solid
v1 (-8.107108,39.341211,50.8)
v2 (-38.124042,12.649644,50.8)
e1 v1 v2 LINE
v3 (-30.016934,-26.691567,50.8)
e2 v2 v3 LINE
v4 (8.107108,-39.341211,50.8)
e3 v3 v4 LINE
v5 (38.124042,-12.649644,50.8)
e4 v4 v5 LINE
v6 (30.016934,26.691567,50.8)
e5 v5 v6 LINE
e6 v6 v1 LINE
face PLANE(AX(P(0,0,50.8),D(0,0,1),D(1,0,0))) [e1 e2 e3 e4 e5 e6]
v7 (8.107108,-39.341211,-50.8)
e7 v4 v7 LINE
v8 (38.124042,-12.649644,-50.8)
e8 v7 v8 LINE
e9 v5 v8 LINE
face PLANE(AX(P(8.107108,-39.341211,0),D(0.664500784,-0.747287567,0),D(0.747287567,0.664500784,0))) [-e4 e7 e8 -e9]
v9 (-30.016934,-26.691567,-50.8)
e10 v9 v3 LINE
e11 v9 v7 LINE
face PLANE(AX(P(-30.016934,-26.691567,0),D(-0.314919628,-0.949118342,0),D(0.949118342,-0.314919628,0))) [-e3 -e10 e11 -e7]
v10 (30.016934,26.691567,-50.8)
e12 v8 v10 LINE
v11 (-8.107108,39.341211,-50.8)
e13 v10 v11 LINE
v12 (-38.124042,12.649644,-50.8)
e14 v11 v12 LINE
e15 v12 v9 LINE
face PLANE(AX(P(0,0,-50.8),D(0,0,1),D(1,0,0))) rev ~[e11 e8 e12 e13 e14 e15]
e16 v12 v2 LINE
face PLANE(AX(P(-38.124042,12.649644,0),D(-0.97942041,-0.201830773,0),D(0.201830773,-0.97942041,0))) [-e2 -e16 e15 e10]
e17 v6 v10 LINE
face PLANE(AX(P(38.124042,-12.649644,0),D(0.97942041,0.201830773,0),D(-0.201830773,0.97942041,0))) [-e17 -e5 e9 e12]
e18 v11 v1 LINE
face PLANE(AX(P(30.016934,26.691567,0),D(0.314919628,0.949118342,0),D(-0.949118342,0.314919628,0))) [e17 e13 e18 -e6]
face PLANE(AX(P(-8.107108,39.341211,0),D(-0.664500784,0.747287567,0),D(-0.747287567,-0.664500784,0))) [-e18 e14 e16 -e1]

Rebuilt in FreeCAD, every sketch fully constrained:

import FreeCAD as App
import Part
import Sketcher

V = App.Vector

doc = App.newDocument("Part")
params = doc.addObject("Spreadsheet::Sheet", "Params")
for row, (alias, value) in enumerate([
    ("pad1_length", "2 in"),
    ("pad1_length2", "2 in"),
], start=1):
    params.set(f"A{row}", alias)
    params.set(f"B{row}", "=" + value)
    params.setAlias(f"B{row}", alias)

body = doc.addObject("PartDesign::Body", "Body")

# Sketch on XY plane
sketch1 = body.newObject("Sketcher::SketchObject", "Sketch")
sketch1.AttachmentSupport = (doc.getObject("XY_Plane"), [""])
sketch1.MapMode = "FlatFace"
sketch1.addGeometry([
    Part.LineSegment(V(30, 27, 0), V(-8, 39, 0)),  # 0
    Part.LineSegment(V(-8, 39, 0), V(-38, 13, 0)),  # 1
    Part.LineSegment(V(-38, 13, 0), V(-30, -27, 0)),  # 2
    Part.LineSegment(V(-30, -27, 0), V(8, -39, 0)),  # 3
    Part.LineSegment(V(8, -39, 0), V(38, -13, 0)),  # 4
    Part.LineSegment(V(38, -13, 0), V(30, 27, 0)),  # 5
], False)
sketch1.addConstraint([
    Sketcher.Constraint("Coincident", 0, 2, 1, 1),
    Sketcher.Constraint("Coincident", 1, 2, 2, 1),
    Sketcher.Constraint("Coincident", 2, 2, 3, 1),
    Sketcher.Constraint("Coincident", 3, 2, 4, 1),
    Sketcher.Constraint("Coincident", 4, 2, 5, 1),
    Sketcher.Constraint("Coincident", 5, 2, 0, 1),
    Sketcher.Constraint("Symmetric", 0, 2, 3, 2, -1, 1),
    Sketcher.Constraint("Symmetric", 1, 2, 4, 2, -1, 1),
    Sketcher.Constraint("Symmetric", 2, 2, 5, 2, -1, 1),
    Sketcher.Constraint("Equal", 0, 1),
    Sketcher.Constraint("Equal", 1, 2),
    Sketcher.Constraint("Distance", 0, 40.167849),
    Sketcher.Constraint("DistanceY", -1, 1, 0, 2, 39.341211),
    Sketcher.Constraint("DistanceX", 1, 2, 2, 2, 8.107108),
    Sketcher.Constraint("DistanceY", 2, 2, 0, 2, 66.032778),
])
pad1 = body.newObject("PartDesign::Pad", "Pad")
pad1.Profile = sketch1
pad1.Type = "TwoLengths"
pad1.setExpression("Length", "Params.pad1_length")
pad1.setExpression("Length2", "Params.pad1_length2")

doc.recompute()
